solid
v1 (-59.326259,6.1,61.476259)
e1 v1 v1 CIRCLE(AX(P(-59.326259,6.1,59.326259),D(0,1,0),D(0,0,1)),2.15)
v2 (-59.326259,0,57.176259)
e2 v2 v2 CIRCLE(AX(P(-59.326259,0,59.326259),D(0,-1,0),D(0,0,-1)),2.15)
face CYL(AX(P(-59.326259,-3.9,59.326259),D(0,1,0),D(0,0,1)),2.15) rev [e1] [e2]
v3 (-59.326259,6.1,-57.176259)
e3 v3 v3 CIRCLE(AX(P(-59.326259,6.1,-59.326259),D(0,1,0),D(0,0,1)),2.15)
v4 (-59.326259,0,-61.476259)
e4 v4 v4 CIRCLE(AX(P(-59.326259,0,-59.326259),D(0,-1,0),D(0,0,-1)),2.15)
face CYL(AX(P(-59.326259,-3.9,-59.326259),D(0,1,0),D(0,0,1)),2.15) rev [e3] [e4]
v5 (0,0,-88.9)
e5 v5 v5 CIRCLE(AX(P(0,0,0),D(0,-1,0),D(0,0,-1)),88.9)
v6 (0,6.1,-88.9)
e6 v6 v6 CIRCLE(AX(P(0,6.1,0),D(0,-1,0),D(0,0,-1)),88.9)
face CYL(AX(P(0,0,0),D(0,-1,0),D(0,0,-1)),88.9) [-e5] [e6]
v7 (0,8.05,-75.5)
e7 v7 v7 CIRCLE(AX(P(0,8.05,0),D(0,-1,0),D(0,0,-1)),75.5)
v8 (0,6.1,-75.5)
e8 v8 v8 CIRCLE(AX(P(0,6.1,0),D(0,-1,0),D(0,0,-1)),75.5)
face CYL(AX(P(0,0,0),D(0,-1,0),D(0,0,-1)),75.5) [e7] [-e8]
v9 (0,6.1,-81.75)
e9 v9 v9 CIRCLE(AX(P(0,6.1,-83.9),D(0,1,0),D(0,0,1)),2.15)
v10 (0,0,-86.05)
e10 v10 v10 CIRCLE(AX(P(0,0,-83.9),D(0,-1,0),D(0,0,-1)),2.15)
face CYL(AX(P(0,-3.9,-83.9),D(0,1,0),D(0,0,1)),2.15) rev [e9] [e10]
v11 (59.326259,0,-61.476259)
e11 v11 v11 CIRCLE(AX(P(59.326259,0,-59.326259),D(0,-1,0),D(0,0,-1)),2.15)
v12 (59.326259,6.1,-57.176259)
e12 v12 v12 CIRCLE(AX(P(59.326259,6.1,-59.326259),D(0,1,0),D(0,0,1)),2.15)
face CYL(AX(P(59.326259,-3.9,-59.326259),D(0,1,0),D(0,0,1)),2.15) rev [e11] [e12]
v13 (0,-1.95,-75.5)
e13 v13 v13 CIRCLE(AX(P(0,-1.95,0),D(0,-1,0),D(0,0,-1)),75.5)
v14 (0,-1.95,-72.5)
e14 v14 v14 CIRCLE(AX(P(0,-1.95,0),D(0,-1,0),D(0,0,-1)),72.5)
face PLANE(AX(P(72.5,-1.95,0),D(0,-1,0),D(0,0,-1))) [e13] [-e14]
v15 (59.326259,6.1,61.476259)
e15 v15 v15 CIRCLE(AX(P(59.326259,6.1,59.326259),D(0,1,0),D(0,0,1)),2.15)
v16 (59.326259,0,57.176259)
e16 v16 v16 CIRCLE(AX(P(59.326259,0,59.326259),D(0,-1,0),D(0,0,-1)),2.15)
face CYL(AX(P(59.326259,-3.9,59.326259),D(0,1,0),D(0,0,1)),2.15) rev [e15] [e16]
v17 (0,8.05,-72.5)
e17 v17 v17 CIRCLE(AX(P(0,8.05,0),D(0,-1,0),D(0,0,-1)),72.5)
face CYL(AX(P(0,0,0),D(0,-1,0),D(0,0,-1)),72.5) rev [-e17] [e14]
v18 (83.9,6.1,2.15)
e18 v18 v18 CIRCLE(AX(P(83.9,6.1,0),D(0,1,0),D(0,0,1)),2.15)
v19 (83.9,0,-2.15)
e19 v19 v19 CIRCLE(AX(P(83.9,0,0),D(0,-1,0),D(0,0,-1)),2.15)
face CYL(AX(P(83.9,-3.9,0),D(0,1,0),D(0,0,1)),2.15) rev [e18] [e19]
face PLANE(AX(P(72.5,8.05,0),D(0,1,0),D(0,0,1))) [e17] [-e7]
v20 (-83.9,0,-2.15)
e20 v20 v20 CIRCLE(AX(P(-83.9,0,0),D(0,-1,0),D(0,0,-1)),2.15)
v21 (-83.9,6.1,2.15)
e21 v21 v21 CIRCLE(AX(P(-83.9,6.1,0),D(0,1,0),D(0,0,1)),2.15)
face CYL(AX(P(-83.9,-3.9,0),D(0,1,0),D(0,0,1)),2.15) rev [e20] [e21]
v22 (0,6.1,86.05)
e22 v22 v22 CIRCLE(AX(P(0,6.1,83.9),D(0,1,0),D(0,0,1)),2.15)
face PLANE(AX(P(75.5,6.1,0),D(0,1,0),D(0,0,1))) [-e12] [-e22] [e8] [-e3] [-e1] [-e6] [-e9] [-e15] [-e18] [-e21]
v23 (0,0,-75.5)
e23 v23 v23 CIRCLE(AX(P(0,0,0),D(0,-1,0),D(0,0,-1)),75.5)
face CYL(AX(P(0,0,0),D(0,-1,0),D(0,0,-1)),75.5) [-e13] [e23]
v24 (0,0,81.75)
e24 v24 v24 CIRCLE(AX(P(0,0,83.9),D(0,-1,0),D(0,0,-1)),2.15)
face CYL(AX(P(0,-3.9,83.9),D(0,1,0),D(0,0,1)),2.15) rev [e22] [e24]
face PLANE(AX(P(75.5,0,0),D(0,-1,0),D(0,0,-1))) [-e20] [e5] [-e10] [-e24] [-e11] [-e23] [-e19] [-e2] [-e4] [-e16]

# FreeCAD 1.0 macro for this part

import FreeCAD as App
import Part
import Sketcher
Q = App.Units.Quantity


def add_polygon(sketch, points):
    """Adds a closed chain of lines whose ends are joined by coincident constraints."""
    first, n = sketch.GeometryCount, len(points)
    for a, b in zip(points, points[1:] + points[:1]):
        sketch.addGeometry(Part.LineSegment(App.Vector(*a, 0), App.Vector(*b, 0)), False)
    for i in range(n):
        sketch.addConstraint(Sketcher.Constraint("Coincident", first + i, 2, first + (i + 1) % n, 1))

doc = App.newDocument("Part")
body = doc.addObject("PartDesign::Body", "Body")

# Sketch on XY plane
sketch1 = doc.addObject("Sketcher::SketchObject", "Sketch")
body.addObject(sketch1)
sketch1.AttachmentSupport = (doc.XY_Plane, [""])
sketch1.MapMode = "FlatFace"
add_polygon(sketch1, [(75.5, 0), (88.9, 0), (88.9, 6.1), (75.5, 6.1), (75.5, 8.1), (72.5, 8.1), (72.5, -1.9), (75.5, -1.9)])  # lines 0-7
sketch1.addConstraint(Sketcher.Constraint("Horizontal", 0))
sketch1.addConstraint(Sketcher.Constraint("Vertical", 1))
sketch1.addConstraint(Sketcher.Constraint("Horizontal", 2))
sketch1.addConstraint(Sketcher.Constraint("Vertical", 3))
sketch1.addConstraint(Sketcher.Constraint("Horizontal", 4))
sketch1.addConstraint(Sketcher.Constraint("Vertical", 5))
sketch1.addConstraint(Sketcher.Constraint("Horizontal", 6))
sketch1.addConstraint(Sketcher.Constraint("Vertical", 7))
sketch1.addConstraint(Sketcher.Constraint("PointOnObject", 0, 2, -1))
sketch1.addConstraint(Sketcher.Constraint("Vertical", 3, 2, 6, 2))
sketch1.addConstraint(Sketcher.Constraint("Equal", 3, 7))
sketch1.addConstraint(Sketcher.Constraint("DistanceX", 4, 2, 4, 1, Q("3 mm")))
sketch1.addConstraint(Sketcher.Constraint("DistanceY", 5, 2, 5, 1, Q("10 mm")))
sketch1.addConstraint(Sketcher.Constraint("DistanceX", 0, 1, 0, 2, Q("13.4 mm")))
sketch1.addConstraint(Sketcher.Constraint("DistanceY", 1, 1, 1, 2, Q("6.1 mm")))
sketch1.addConstraint(Sketcher.Constraint("DistanceX", -1, 1, 0, 2, Q("88.9 mm")))
revolution = doc.addObject("PartDesign::Revolution", "Revolution")
body.addObject(revolution)
revolution.Profile = sketch1
revolution.ReferenceAxis = (sketch1, ["V_Axis"])
revolution.Angle = 360

# Sketch on XZ plane
sketch2 = doc.addObject("Sketcher::SketchObject", "Sketch001")
body.addObject(sketch2)
sketch2.AttachmentSupport = (doc.XZ_Plane, [""])
sketch2.MapMode = "FlatFace"
sketch2.AttachmentOffset = App.Placement(App.Vector(0, 0, -6.1), App.Rotation())
sketch2.addGeometry(Part.Circle(App.Vector(-83.9, 0, 0), App.Vector(0, 0, 1), 2.1), False)
sketch2.addGeometry(Part.Circle(App.Vector(-59.3, -59.3, 0), App.Vector(0, 0, 1), 2.1), False)
sketch2.addGeometry(Part.Circle(App.Vector(0, -83.9, 0), App.Vector(0, 0, 1), 2.1), False)
sketch2.addGeometry(Part.Circle(App.Vector(59.3, -59.3, 0), App.Vector(0, 0, 1), 2.1), False)
sketch2.addGeometry(Part.Circle(App.Vector(83.9, 0, 0), App.Vector(0, 0, 1), 2.1), False)
sketch2.addGeometry(Part.Circle(App.Vector(59.3, 59.3, 0), App.Vector(0, 0, 1), 2.1), False)
sketch2.addGeometry(Part.Circle(App.Vector(0, 83.9, 0), App.Vector(0, 0, 1), 2.1), False)
sketch2.addGeometry(Part.Circle(App.Vector(-59.3, 59.3, 0), App.Vector(0, 0, 1), 2.1), False)
sketch2.addConstraint(Sketcher.Constraint("Equal", 0, 1))
sketch2.addConstraint(Sketcher.Constraint("Equal", 1, 2))
sketch2.addConstraint(Sketcher.Constraint("Equal", 2, 3))
sketch2.addConstraint(Sketcher.Constraint("Equal", 3, 4))
sketch2.addConstraint(Sketcher.Constraint("Equal", 4, 5))
sketch2.addConstraint(Sketcher.Constraint("Equal", 5, 6))
sketch2.addConstraint(Sketcher.Constraint("Equal", 6, 7))
sketch2.addConstraint(Sketcher.Constraint("Symmetric", 0, 3, 4, 3, -1, 1))
sketch2.addConstraint(Sketcher.Constraint("Symmetric", 1, 3, 5, 3, -1, 1))
sketch2.addConstraint(Sketcher.Constraint("Symmetric", 2, 3, 6, 3, -1, 1))
sketch2.addConstraint(Sketcher.Constraint("Symmetric", 3, 3, 7, 3, -1, 1))
sketch2.addConstraint(Sketcher.Constraint("Symmetric", 1, 3, 3, 3, -2))
sketch2.addConstraint(Sketcher.Constraint("PointOnObject", 0, 3, -1))
sketch2.addConstraint(Sketcher.Constraint("PointOnObject", 2, 3, -2))
sketch2.addConstraint(Sketcher.Constraint("Diameter", 0, Q("4.3 mm")))
sketch2.addConstraint(Sketcher.Constraint("DistanceX", 0, 3, -1, 1, Q("83.9 mm")))
sketch2.addConstraint(Sketcher.Constraint("DistanceY", 2, 3, -1, 1, Q("83.9 mm")))
sketch2.addConstraint(Sketcher.Constraint("DistanceX", 1, 3, -1, 1, Q("59.326259 mm")))
sketch2.addConstraint(Sketcher.Constraint("DistanceY", 1, 3, -1, 1, Q("59.326259 mm")))
pocket1 = doc.addObject("PartDesign::Pocket", "Pocket")
body.addObject(pocket1)
pocket1.Profile = sketch2
pocket1.Length = 10
pocket1.Reversed = True

doc.recompute()
